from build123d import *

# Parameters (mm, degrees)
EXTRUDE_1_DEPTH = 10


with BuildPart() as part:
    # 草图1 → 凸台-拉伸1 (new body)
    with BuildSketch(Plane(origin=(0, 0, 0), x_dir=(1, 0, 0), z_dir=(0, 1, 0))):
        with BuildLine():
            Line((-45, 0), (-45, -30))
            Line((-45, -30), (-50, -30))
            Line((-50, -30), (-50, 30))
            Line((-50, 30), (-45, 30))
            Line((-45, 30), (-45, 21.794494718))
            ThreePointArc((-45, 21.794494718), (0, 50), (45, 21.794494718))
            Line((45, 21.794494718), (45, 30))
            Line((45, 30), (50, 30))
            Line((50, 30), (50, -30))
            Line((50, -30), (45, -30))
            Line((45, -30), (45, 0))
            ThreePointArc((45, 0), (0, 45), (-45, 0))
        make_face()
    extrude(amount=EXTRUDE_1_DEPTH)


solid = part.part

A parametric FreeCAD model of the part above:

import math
import FreeCAD as App
import Part
import Sketcher
from FreeCAD import Vector

doc = App.newDocument("Part")
body = doc.addObject("PartDesign::Body", "Body")

sketch1 = doc.addObject("Sketcher::SketchObject", "Sketch")
body.addObject(sketch1)
sketch1.AttachmentSupport = (doc.XZ_Plane, [""])
sketch1.MapMode = "FlatFace"
sketch1.addGeometry(Part.LineSegment(Vector(-45, 30, 0), Vector(-45, 0, 0)), False)
sketch1.addGeometry(Part.ArcOfCircle(Part.Circle(Vector(0, 0, 0), Vector(0, 0, 1), 45), math.radians(180), math.radians(360)), False)
sketch1.addGeometry(Part.LineSegment(Vector(45, 0, 0), Vector(45, 30, 0)), False)
sketch1.addGeometry(Part.LineSegment(Vector(45, 30, 0), Vector(50, 30, 0)), False)
sketch1.addGeometry(Part.LineSegment(Vector(50, 30, 0), Vector(50, -30, 0)), False)
sketch1.addGeometry(Part.LineSegment(Vector(50, -30, 0), Vector(45, -30, 0)), False)
sketch1.addGeometry(Part.LineSegment(Vector(45, -30, 0), Vector(45, -22, 0)), False)
sketch1.addGeometry(Part.ArcOfCircle(Part.Circle(Vector(0, 0, 0), Vector(0, 0, 1), 50), math.radians(-154), math.radians(-26)), False)
sketch1.addGeometry(Part.LineSegment(Vector(-45, -22, 0), Vector(-45, -30, 0)), False)
sketch1.addGeometry(Part.LineSegment(Vector(-45, -30, 0), Vector(-50, -30, 0)), False)
sketch1.addGeometry(Part.LineSegment(Vector(-50, -30, 0), Vector(-50, 30, 0)), False)
sketch1.addGeometry(Part.LineSegment(Vector(-50, 30, 0), Vector(-45, 30, 0)), False)
sketch1.addConstraint(Sketcher.Constraint("Tangent", 0, 2, 1, 1))
sketch1.addConstraint(Sketcher.Constraint("Tangent", 1, 2, 2, 1))
sketch1.addConstraint(Sketcher.Constraint("Coincident", 2, 2, 3, 1))
sketch1.addConstraint(Sketcher.Constraint("Coincident", 3, 2, 4, 1))
sketch1.addConstraint(Sketcher.Constraint("Coincident", 4, 2, 5, 1))
sketch1.addConstraint(Sketcher.Constraint("Coincident", 5, 2, 6, 1))
sketch1.addConstraint(Sketcher.Constraint("Coincident", 6, 2, 7, 2))
sketch1.addConstraint(Sketcher.Constraint("Coincident", 7, 1, 8, 1))
sketch1.addConstraint(Sketcher.Constraint("Coincident", 8, 2, 9, 1))
sketch1.addConstraint(Sketcher.Constraint("Coincident", 9, 2, 10, 1))
sketch1.addConstraint(Sketcher.Constraint("Coincident", 10, 2, 11, 1))
sketch1.addConstraint(Sketcher.Constraint("Coincident", 11, 2, 0, 1))
sketch1.addConstraint(Sketcher.Constraint("Vertical", 0))
sketch1.addConstraint(Sketcher.Constraint("Vertical", 2))
sketch1.addConstraint(Sketcher.Constraint("Horizontal", 3))
sketch1.addConstraint(Sketcher.Constraint("Vertical", 4))
sketch1.addConstraint(Sketcher.Constraint("Horizontal", 5))
sketch1.addConstraint(Sketcher.Constraint("Vertical", 6))
sketch1.addConstraint(Sketcher.Constraint("Vertical", 8))
sketch1.addConstraint(Sketcher.Constraint("Horizontal", 9))
sketch1.addConstraint(Sketcher.Constraint("Vertical", 10))
sketch1.addConstraint(Sketcher.Constraint("Horizontal", 11))
sketch1.addConstraint(Sketcher.Constraint("Coincident", 1, 3, -1, 1))
sketch1.addConstraint(Sketcher.Constraint("Coincident", 7, 3, -1, 1))
sketch1.addConstraint(Sketcher.Constraint("Symmetric", 2, 2, 8, 2, -1, 1))
sketch1.addConstraint(Sketcher.Constraint("Symmetric", 4, 2, 10, 2, -1, 1))
sketch1.addConstraint(Sketcher.Constraint("Symmetric", 5, 2, 8, 2, -2))
sketch1.addConstraint(Sketcher.Constraint("Radius", 1, 45.0))
sketch1.addConstraint(Sketcher.Constraint("Radius", 7, 50.0))
sketch1.addConstraint(Sketcher.Constraint("DistanceX", 3, 1, 3, 2, 5.0))
sketch1.addConstraint(Sketcher.Constraint("DistanceY", 0, 2, 0, 1, 30.0))
pad1 = doc.addObject("PartDesign::Pad", "Pad")
body.addObject(pad1)
pad1.Profile = sketch1
pad1.Length = 10
pad1.Reversed = True

doc.recompute()
